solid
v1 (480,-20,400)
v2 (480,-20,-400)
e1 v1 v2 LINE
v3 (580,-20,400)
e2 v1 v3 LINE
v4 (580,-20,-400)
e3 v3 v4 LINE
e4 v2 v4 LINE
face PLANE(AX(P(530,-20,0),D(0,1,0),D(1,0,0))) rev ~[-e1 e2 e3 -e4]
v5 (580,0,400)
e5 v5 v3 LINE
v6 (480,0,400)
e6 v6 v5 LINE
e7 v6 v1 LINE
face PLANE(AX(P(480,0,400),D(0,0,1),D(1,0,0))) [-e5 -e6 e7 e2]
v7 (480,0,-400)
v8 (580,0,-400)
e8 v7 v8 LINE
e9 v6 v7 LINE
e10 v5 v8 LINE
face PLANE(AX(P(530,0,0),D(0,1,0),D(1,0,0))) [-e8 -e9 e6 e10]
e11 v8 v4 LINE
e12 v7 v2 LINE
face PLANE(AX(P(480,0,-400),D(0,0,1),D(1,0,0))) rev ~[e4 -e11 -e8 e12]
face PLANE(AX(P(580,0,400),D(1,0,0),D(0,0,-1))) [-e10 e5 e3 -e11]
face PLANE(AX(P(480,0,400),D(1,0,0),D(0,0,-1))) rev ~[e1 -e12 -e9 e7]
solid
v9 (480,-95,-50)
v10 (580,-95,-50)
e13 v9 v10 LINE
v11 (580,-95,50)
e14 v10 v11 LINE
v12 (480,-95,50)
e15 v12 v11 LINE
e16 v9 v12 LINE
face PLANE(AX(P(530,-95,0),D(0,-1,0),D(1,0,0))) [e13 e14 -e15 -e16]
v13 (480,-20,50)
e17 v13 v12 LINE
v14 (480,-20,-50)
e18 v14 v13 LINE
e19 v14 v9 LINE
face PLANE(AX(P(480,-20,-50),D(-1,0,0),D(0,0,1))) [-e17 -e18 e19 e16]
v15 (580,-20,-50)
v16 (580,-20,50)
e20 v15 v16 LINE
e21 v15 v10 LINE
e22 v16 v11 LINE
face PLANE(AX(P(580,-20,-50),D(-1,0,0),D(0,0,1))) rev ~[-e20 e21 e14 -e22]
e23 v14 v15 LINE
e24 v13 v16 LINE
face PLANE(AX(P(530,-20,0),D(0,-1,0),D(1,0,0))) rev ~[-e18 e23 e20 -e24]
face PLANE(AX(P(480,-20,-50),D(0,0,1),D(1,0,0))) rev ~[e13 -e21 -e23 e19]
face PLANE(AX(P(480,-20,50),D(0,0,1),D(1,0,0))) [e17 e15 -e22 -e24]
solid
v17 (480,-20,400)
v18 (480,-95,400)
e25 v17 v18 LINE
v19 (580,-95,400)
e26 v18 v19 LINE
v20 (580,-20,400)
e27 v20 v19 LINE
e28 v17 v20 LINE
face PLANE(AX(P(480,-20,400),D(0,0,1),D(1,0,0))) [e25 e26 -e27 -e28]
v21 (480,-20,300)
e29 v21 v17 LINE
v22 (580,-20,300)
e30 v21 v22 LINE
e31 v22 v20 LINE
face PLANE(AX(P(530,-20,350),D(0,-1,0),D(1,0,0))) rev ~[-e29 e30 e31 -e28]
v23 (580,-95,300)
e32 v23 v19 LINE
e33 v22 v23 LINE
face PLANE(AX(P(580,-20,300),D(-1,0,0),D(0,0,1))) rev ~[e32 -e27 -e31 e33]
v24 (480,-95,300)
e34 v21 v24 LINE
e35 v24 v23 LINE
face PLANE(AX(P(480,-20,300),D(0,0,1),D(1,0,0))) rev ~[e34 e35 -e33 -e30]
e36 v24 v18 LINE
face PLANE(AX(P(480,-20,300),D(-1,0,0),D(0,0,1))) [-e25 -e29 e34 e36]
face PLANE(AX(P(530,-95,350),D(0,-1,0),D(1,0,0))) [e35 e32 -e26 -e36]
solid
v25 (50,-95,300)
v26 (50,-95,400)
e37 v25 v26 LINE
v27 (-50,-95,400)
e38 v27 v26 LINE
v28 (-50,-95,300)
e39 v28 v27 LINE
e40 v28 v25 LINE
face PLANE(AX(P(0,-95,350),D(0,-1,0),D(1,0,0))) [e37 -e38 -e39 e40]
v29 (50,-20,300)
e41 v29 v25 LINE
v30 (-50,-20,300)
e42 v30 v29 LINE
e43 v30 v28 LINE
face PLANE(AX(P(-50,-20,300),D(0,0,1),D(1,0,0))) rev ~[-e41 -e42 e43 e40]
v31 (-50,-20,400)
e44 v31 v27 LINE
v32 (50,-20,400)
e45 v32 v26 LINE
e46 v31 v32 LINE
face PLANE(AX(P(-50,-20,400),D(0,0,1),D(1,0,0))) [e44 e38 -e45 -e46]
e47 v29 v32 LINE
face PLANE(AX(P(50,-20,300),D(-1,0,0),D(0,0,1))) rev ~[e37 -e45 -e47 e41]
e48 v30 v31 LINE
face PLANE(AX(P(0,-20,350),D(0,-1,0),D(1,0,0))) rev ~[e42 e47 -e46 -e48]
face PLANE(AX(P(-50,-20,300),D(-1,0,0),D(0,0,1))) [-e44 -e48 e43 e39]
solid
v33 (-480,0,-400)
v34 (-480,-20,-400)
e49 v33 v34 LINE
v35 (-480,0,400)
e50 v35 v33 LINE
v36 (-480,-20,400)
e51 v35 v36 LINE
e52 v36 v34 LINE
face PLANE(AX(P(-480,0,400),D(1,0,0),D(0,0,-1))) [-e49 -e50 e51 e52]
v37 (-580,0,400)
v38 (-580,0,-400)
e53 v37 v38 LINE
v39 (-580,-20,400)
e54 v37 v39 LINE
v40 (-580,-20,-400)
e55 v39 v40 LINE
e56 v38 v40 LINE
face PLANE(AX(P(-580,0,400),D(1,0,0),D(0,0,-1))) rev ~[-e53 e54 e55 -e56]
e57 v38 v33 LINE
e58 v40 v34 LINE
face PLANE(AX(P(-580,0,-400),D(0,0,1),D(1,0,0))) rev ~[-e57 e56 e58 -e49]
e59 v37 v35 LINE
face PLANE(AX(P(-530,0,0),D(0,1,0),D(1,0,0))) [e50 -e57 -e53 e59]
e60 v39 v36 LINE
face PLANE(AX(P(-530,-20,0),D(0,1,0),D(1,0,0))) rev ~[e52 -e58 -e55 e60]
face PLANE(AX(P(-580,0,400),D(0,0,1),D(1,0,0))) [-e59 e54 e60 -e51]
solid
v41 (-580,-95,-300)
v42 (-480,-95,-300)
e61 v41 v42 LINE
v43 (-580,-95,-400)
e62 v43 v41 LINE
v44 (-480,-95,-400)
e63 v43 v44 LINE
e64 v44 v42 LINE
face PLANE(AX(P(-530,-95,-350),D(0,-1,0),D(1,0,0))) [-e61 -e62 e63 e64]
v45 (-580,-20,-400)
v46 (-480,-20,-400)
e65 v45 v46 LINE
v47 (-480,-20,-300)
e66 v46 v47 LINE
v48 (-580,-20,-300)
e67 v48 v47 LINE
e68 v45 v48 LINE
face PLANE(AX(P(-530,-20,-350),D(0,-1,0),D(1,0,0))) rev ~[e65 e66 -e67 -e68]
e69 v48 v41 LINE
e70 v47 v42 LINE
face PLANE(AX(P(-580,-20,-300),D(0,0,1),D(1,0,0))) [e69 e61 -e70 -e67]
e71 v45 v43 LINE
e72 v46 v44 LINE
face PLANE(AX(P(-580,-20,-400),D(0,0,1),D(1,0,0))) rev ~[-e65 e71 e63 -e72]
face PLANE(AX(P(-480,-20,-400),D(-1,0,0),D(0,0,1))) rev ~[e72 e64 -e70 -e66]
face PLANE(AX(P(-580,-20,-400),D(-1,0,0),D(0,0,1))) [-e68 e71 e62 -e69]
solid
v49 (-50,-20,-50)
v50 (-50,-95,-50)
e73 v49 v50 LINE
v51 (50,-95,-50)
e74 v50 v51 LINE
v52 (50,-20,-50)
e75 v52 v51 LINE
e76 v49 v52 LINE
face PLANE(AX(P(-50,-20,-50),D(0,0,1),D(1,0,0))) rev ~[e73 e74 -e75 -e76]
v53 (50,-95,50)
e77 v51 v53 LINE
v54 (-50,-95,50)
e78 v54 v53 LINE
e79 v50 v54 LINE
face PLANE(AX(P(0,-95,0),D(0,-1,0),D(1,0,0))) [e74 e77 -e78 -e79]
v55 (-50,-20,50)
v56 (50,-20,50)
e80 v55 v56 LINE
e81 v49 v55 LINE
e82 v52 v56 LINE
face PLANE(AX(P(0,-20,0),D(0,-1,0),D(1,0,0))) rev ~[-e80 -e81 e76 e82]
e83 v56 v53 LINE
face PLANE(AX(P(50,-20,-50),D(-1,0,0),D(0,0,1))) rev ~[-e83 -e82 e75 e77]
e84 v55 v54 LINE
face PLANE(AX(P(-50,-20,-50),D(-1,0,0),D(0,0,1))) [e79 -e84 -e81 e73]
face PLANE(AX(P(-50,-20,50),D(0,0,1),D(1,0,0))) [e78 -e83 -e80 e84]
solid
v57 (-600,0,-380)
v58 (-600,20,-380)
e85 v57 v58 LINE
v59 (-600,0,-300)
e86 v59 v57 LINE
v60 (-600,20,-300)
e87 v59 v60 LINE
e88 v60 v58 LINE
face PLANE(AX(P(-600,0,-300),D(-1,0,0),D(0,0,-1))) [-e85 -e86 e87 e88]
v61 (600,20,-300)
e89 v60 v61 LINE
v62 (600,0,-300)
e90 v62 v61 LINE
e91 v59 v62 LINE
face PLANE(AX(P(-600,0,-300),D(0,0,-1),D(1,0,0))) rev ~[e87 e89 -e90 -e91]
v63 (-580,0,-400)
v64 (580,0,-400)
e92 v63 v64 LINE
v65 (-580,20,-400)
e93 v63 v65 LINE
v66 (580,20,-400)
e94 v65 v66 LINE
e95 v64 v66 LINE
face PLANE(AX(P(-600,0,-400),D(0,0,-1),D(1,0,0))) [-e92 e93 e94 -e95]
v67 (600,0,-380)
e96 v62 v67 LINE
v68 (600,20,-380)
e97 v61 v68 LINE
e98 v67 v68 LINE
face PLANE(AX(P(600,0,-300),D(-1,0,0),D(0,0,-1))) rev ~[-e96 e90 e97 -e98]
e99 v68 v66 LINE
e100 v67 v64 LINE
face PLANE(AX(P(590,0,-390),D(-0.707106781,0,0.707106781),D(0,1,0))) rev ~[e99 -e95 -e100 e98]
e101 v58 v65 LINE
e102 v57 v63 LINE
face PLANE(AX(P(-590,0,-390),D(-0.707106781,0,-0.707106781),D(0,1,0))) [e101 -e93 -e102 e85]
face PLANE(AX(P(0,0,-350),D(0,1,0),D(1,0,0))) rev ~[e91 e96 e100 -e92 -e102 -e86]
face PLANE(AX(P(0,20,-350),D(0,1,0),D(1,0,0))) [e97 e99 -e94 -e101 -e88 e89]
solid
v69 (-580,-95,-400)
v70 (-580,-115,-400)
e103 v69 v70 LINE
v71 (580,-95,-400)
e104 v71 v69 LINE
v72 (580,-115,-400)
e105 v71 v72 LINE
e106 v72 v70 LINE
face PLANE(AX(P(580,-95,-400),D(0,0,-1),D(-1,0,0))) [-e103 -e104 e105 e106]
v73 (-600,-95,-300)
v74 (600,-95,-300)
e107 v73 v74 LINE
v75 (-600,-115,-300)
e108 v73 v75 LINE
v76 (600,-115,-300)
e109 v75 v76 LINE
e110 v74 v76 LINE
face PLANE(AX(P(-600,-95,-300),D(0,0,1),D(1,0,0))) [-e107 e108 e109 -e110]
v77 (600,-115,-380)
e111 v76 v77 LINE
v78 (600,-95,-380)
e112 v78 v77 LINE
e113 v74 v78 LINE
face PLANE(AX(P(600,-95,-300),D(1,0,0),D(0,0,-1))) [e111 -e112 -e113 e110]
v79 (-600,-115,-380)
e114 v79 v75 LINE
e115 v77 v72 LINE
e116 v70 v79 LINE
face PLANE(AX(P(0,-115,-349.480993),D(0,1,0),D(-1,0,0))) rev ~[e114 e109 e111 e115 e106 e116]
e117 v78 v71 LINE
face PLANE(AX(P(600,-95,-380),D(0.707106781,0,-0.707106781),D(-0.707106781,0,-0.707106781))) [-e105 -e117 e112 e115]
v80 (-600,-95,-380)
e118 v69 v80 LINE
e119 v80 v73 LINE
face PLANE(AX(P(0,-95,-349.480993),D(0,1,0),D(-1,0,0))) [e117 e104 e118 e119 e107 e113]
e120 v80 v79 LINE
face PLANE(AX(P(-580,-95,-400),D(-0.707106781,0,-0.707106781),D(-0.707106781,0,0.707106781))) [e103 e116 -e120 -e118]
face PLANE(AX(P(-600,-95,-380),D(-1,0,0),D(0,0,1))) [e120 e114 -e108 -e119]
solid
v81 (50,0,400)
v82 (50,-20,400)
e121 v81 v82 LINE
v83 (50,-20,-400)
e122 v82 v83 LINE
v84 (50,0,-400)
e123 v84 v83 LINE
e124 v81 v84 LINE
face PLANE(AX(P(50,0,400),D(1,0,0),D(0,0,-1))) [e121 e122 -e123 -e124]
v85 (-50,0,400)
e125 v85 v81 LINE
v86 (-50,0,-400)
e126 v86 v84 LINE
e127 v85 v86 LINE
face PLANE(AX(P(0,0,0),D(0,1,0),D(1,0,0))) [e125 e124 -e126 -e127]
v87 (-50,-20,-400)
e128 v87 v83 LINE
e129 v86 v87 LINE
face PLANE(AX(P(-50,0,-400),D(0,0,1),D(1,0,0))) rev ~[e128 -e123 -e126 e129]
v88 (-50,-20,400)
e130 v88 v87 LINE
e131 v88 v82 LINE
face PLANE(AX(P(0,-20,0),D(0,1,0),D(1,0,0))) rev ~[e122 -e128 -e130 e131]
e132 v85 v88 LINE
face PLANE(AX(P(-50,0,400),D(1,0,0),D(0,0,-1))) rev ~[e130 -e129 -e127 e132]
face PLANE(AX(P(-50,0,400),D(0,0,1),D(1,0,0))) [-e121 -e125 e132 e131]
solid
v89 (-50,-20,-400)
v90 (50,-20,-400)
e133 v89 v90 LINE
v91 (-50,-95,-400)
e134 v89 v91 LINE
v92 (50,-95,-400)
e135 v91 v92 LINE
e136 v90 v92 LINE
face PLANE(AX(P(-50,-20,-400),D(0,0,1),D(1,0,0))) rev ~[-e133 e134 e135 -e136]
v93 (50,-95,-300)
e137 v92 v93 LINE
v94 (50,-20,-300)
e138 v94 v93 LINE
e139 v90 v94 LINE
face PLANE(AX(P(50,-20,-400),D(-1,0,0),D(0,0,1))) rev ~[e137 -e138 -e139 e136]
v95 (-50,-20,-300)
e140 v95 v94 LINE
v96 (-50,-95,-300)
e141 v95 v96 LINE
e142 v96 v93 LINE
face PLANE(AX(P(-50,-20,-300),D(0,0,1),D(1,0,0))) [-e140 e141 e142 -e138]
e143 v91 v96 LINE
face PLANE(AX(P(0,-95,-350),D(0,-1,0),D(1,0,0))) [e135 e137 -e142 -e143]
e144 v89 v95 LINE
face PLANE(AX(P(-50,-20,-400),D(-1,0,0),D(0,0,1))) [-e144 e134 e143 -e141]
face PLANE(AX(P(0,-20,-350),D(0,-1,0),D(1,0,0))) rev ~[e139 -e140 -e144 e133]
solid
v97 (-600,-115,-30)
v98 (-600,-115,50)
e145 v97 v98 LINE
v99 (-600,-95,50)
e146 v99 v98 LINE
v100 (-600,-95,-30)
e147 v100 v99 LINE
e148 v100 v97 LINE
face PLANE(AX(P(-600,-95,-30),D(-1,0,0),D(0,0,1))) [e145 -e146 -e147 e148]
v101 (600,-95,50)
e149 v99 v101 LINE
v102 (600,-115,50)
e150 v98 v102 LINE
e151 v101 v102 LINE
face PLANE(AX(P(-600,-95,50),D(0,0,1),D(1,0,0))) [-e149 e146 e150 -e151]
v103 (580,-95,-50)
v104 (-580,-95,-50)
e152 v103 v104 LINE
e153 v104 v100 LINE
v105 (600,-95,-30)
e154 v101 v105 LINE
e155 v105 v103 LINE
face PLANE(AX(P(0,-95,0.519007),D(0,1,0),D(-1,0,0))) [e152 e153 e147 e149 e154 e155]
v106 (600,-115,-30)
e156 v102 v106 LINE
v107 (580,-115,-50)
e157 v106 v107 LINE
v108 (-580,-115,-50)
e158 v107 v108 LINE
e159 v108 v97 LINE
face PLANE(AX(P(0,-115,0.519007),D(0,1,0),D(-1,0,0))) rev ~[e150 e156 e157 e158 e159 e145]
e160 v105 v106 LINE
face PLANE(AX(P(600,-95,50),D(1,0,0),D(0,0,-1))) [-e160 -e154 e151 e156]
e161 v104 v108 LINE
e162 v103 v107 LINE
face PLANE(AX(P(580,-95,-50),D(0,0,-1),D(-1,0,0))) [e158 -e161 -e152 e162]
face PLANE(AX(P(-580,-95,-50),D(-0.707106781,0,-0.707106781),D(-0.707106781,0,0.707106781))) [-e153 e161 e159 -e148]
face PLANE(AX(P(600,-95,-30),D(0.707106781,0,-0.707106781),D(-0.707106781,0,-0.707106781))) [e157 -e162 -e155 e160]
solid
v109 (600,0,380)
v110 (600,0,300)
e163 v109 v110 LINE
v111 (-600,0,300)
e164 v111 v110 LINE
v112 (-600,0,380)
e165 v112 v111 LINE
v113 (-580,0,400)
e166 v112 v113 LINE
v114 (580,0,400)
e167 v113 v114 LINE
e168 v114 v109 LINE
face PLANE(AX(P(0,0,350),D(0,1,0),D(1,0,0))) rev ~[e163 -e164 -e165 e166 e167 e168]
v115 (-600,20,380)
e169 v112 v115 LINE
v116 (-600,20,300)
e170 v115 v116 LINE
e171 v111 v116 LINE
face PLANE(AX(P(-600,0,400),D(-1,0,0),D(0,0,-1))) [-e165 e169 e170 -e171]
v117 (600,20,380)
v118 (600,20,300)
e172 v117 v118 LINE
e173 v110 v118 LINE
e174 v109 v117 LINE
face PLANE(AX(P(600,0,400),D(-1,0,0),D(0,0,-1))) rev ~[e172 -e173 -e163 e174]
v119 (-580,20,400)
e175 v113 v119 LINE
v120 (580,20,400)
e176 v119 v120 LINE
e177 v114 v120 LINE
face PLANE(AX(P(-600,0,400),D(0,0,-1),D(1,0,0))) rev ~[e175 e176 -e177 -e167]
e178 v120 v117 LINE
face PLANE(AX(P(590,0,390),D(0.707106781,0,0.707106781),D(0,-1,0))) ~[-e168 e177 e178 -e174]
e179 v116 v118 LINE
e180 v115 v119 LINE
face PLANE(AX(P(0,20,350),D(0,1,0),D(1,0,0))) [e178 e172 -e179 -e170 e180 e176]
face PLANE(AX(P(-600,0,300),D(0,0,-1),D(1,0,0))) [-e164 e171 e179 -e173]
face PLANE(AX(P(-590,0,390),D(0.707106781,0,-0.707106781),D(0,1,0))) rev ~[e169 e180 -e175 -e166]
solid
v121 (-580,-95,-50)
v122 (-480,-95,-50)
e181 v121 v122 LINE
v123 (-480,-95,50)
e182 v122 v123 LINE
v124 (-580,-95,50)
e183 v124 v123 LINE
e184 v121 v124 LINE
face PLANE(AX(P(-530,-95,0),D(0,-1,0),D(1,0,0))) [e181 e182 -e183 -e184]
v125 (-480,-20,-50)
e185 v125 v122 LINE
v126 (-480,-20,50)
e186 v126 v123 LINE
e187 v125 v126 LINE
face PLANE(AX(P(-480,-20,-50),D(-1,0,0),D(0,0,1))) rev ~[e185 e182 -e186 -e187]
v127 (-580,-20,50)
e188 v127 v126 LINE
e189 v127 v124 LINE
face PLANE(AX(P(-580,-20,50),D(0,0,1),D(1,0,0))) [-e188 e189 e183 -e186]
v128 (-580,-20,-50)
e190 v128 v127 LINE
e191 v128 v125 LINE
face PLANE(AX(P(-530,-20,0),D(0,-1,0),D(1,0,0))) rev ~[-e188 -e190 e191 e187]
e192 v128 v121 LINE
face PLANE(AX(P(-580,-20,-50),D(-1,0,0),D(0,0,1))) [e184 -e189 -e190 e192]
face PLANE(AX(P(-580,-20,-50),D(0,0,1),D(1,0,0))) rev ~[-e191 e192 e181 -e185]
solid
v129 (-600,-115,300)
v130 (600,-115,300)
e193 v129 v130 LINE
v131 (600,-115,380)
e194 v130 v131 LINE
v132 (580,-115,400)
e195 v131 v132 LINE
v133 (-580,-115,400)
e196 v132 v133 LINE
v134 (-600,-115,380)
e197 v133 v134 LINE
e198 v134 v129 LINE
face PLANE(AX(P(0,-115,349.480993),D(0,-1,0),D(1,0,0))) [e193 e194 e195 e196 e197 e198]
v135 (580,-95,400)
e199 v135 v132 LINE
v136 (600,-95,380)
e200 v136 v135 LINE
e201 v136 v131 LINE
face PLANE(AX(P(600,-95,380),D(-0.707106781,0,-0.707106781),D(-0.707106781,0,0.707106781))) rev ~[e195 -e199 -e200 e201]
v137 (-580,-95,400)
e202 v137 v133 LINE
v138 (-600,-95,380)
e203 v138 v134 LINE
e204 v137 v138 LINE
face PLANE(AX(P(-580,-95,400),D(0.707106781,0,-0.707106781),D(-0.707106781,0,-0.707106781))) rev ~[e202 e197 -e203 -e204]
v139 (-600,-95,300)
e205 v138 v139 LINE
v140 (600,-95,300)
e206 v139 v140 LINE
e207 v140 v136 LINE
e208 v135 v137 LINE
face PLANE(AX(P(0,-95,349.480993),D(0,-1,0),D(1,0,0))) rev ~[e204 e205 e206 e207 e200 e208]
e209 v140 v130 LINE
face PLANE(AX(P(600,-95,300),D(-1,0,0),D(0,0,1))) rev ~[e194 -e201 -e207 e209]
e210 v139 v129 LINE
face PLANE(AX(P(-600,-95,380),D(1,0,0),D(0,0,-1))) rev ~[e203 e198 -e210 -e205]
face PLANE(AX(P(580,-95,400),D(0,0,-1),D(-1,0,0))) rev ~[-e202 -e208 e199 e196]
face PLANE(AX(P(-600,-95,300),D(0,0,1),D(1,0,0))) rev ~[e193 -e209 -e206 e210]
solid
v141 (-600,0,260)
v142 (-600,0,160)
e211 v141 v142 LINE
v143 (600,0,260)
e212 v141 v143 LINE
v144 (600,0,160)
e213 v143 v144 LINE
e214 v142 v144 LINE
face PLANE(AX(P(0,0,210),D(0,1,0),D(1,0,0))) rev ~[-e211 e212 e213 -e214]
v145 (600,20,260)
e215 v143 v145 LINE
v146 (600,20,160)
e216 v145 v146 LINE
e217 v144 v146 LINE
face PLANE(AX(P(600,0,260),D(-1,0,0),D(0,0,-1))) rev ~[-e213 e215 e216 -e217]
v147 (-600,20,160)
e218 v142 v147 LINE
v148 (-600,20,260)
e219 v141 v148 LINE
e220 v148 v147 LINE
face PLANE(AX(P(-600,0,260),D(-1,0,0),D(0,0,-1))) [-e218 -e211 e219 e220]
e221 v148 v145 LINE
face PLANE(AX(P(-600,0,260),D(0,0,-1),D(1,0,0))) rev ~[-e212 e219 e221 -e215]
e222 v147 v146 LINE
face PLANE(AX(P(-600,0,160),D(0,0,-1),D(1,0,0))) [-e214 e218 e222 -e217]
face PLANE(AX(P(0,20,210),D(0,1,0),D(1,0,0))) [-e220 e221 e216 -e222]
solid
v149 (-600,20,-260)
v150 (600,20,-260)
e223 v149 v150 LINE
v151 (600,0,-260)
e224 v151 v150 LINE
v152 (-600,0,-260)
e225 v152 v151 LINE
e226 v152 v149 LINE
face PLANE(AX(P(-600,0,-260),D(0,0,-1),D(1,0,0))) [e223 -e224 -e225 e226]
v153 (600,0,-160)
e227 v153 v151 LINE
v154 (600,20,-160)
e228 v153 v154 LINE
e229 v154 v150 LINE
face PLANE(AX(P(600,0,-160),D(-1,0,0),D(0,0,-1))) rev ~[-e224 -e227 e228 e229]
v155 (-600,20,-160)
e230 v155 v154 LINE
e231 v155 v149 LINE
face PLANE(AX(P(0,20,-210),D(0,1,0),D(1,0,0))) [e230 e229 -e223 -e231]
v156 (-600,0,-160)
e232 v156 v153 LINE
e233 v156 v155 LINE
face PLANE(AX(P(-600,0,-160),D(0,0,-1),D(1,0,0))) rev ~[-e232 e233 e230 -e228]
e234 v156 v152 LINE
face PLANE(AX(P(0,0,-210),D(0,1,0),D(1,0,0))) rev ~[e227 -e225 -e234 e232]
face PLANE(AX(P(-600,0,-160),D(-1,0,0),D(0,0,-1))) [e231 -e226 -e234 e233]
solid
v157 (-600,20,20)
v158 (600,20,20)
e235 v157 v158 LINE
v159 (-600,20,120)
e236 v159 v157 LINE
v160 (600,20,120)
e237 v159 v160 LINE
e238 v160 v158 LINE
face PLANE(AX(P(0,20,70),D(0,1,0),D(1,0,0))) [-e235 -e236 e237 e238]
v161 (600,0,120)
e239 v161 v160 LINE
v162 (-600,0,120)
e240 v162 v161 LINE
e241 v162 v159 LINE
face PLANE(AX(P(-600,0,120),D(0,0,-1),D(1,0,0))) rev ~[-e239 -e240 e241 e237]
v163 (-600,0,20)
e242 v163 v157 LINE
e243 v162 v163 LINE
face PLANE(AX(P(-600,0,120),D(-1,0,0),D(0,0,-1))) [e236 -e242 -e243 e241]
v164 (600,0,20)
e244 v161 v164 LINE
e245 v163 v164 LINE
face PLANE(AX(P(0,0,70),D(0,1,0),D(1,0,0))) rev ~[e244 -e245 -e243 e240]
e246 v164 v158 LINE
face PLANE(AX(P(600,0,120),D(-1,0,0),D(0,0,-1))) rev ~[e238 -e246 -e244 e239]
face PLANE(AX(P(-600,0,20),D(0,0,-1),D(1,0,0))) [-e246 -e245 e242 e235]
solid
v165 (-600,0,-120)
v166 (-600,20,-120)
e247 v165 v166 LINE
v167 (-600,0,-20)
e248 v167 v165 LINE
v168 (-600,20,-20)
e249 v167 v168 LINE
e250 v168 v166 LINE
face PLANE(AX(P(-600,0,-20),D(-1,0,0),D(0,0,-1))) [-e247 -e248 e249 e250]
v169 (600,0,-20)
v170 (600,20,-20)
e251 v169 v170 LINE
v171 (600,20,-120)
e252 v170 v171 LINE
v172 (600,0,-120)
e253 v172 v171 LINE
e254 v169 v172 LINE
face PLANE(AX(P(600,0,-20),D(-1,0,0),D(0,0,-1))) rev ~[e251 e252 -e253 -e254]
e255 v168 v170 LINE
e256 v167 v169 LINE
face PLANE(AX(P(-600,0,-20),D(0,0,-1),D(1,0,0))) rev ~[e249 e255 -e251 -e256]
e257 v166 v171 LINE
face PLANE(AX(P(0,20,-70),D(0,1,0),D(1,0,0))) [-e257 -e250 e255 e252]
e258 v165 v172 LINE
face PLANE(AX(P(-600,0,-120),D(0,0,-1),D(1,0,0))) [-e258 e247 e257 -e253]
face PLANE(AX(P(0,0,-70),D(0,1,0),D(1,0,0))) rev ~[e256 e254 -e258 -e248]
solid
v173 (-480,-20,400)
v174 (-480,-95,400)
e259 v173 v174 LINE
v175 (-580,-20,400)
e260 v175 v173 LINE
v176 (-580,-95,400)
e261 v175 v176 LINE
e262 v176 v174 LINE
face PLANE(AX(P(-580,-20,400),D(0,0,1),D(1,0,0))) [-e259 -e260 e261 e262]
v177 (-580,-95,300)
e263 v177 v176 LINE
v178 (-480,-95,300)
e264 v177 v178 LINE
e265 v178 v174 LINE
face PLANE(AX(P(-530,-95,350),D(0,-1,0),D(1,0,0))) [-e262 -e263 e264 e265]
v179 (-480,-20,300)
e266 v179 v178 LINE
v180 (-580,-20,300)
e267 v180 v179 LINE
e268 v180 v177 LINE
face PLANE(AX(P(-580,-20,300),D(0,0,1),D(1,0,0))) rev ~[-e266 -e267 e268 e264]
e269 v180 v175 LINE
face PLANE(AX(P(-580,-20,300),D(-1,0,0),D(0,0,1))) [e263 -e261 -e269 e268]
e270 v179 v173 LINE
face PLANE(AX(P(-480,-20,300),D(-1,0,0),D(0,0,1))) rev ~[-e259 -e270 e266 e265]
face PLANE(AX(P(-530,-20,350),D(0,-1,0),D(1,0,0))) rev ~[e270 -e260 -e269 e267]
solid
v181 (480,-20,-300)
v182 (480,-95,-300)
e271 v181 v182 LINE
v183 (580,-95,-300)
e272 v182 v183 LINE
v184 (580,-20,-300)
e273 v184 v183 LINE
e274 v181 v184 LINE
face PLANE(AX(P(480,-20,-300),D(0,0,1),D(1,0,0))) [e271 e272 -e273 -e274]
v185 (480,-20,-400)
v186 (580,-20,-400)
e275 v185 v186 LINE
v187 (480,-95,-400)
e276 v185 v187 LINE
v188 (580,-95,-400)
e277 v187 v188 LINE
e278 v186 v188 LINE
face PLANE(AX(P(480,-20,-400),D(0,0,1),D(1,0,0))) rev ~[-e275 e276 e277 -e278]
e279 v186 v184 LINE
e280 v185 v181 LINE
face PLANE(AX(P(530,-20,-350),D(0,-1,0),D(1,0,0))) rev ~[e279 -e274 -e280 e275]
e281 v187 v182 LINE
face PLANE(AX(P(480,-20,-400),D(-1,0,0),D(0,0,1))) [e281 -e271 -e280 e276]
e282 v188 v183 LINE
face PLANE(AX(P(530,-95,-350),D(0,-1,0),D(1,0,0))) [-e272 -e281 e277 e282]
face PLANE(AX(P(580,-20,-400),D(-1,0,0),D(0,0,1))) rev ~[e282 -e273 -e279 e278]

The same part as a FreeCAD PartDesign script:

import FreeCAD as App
import Part
import Sketcher


def edges_at(feature, points):
    """Names of the edges that pass closest to the given points."""
    edges = feature.Shape.Edges
    near = lambda p: min(range(len(edges)), key=lambda i: edges[i].distToShape(Part.Vertex(*p))[0])
    return sorted({f"Edge{near(p) + 1}" for p in points})


def add_polygon(sketch, points):
    """Adds a closed chain of lines whose ends are joined by coincident constraints."""
    first, n = sketch.GeometryCount, len(points)
    for a, b in zip(points, points[1:] + points[:1]):
        sketch.addGeometry(Part.LineSegment(App.Vector(*a, 0), App.Vector(*b, 0)), False)
    for i in range(n):
        sketch.addConstraint(Sketcher.Constraint("Coincident", first + i, 2, first + (i + 1) % n, 1))

doc = App.newDocument("Part")
body = doc.addObject("PartDesign::Body", "Body")

# Sketch on XZ plane
sketch1 = body.newObject("Sketcher::SketchObject", "Sketch")
sketch1.AttachmentSupport = (doc.getObject("XZ_Plane"), [""])
sketch1.MapMode = "FlatFace"
add_polygon(sketch1, [(-600, -400), (-600, -300), (600, -300), (600, -400)])  # lines 0-3
sketch1.addConstraint([
    Sketcher.Constraint("Vertical", 0),
    Sketcher.Constraint("Horizontal", 1),
    Sketcher.Constraint("Vertical", 2),
    Sketcher.Constraint("Horizontal", 3),
    Sketcher.Constraint("DistanceX", 1, 1, 1, 2, 1200.0),
    Sketcher.Constraint("DistanceY", 0, 1, 0, 2, 100.0),
    Sketcher.Constraint("DistanceX", 0, 2, -1, 1, 600.0),
    Sketcher.Constraint("DistanceY", 0, 2, -1, 1, 300.0),
])
pad1 = body.newObject("PartDesign::Pad", "Pad")
pad1.Profile = sketch1
pad1.Length = 20
pad1.Reversed = True
doc.recompute()

chamfer = body.newObject("PartDesign::Chamfer", "Chamfer")
chamfer.Base = (pad1, edges_at(pad1, [(-600, 10, -400), (600, 10, -400)]))
chamfer.Size = 20
body2 = doc.addObject("PartDesign::Body", "Body001")

# Sketch on XZ plane
sketch2 = body2.newObject("Sketcher::SketchObject", "Sketch001")
sketch2.AttachmentSupport = (doc.getObject("XZ_Plane001"), [""])
sketch2.MapMode = "FlatFace"
add_polygon(sketch2, [(-600, -260), (-600, -160), (600, -160), (600, -260)])  # lines 0-3
sketch2.addConstraint([
    Sketcher.Constraint("Vertical", 0),
    Sketcher.Constraint("Horizontal", 1),
    Sketcher.Constraint("Vertical", 2),
    Sketcher.Constraint("Horizontal", 3),
    Sketcher.Constraint("DistanceX", 1, 1, 1, 2, 1200.0),
    Sketcher.Constraint("DistanceY", 0, 1, 0, 2, 100.0),
    Sketcher.Constraint("DistanceX", 0, 2, -1, 1, 600.0),
    Sketcher.Constraint("DistanceY", 0, 2, -1, 1, 160.0),
])
pad2 = body2.newObject("PartDesign::Pad", "Pad001")
pad2.Profile = sketch2
pad2.Length = 20
pad2.Reversed = True
body3 = doc.addObject("PartDesign::Body", "Body002")

# Sketch on XZ plane
sketch3 = body3.newObject("Sketcher::SketchObject", "Sketch002")
sketch3.AttachmentSupport = (doc.getObject("XZ_Plane002"), [""])
sketch3.MapMode = "FlatFace"
add_polygon(sketch3, [(-600, -120), (-600, -20), (600, -20), (600, -120)])  # lines 0-3
sketch3.addConstraint([
    Sketcher.Constraint("Vertical", 0),
    Sketcher.Constraint("Horizontal", 1),
    Sketcher.Constraint("Vertical", 2),
    Sketcher.Constraint("Horizontal", 3),
    Sketcher.Constraint("DistanceX", 1, 1, 1, 2, 1200.0),
    Sketcher.Constraint("DistanceY", 0, 1, 0, 2, 100.0),
    Sketcher.Constraint("DistanceX", 0, 2, -1, 1, 600.0),
    Sketcher.Constraint("DistanceY", 0, 2, -1, 1, 20.0),
])
pad3 = body3.newObject("PartDesign::Pad", "Pad002")
pad3.Profile = sketch3
pad3.Length = 20
pad3.Reversed = True
body4 = doc.addObject("PartDesign::Body", "Body003")

# Sketch on XZ plane
sketch4 = body4.newObject("Sketcher::SketchObject", "Sketch003")
sketch4.AttachmentSupport = (doc.getObject("XZ_Plane003"), [""])
sketch4.MapMode = "FlatFace"
add_polygon(sketch4, [(-600, 20), (-600, 120), (600, 120), (600, 20)])  # lines 0-3
sketch4.addConstraint([
    Sketcher.Constraint("Vertical", 0),
    Sketcher.Constraint("Horizontal", 1),
    Sketcher.Constraint("Vertical", 2),
    Sketcher.Constraint("Horizontal", 3),
    Sketcher.Constraint("DistanceX", 1, 1, 1, 2, 1200.0),
    Sketcher.Constraint("DistanceY", 0, 1, 0, 2, 100.0),
    Sketcher.Constraint("DistanceX", 0, 2, -1, 1, 600.0),
    Sketcher.Constraint("DistanceY", -1, 1, 0, 2, 120.0),
])
pad4 = body4.newObject("PartDesign::Pad", "Pad003")
pad4.Profile = sketch4
pad4.Length = 20
pad4.Reversed = True
body5 = doc.addObject("PartDesign::Body", "Body004")

# Sketch on XZ plane
sketch5 = body5.newObject("Sketcher::SketchObject", "Sketch004")
sketch5.AttachmentSupport = (doc.getObject("XZ_Plane004"), [""])
sketch5.MapMode = "FlatFace"
add_polygon(sketch5, [(-600, 160), (-600, 260), (600, 260), (600, 160)])  # lines 0-3
sketch5.addConstraint([
    Sketcher.Constraint("Vertical", 0),
    Sketcher.Constraint("Horizontal", 1),
    Sketcher.Constraint("Vertical", 2),
    Sketcher.Constraint("Horizontal", 3),
    Sketcher.Constraint("DistanceX", 1, 1, 1, 2, 1200.0),
    Sketcher.Constraint("DistanceY", 0, 1, 0, 2, 100.0),
    Sketcher.Constraint("DistanceX", 0, 2, -1, 1, 600.0),
    Sketcher.Constraint("DistanceY", -1, 1, 0, 2, 260.0),
])
pad5 = body5.newObject("PartDesign::Pad", "Pad004")
pad5.Profile = sketch5
pad5.Length = 20
pad5.Reversed = True
body6 = doc.addObject("PartDesign::Body", "Body005")

# Sketch on XZ plane
sketch6 = body6.newObject("Sketcher::SketchObject", "Sketch005")
sketch6.AttachmentSupport = (doc.getObject("XZ_Plane005"), [""])
sketch6.MapMode = "FlatFace"
add_polygon(sketch6, [(-600, 300), (-600, 400), (600, 400), (600, 300)])  # lines 0-3
sketch6.addConstraint([
    Sketcher.Constraint("Vertical", 0),
    Sketcher.Constraint("Horizontal", 1),
    Sketcher.Constraint("Vertical", 2),
    Sketcher.Constraint("Horizontal", 3),
    Sketcher.Constraint("DistanceX", 1, 1, 1, 2, 1200.0),
    Sketcher.Constraint("DistanceY", 0, 1, 0, 2, 100.0),
    Sketcher.Constraint("DistanceX", 0, 2, -1, 1, 600.0),
    Sketcher.Constraint("DistanceY", -1, 1, 0, 2, 400.0),
])
pad6 = body6.newObject("PartDesign::Pad", "Pad005")
pad6.Profile = sketch6
pad6.Length = 20
pad6.Reversed = True
doc.recompute()

chamfer2 = body6.newObject("PartDesign::Chamfer", "Chamfer001")
chamfer2.Base = (pad6, edges_at(pad6, [(-600, 10, 400), (600, 10, 400)]))
chamfer2.Size = 20
body7 = doc.addObject("PartDesign::Body", "Body006")

# Sketch on XZ plane
sketch7 = body7.newObject("Sketcher::SketchObject", "Sketch006")
sketch7.AttachmentSupport = (doc.getObject("XZ_Plane006"), [""])
sketch7.MapMode = "FlatFace"
add_polygon(sketch7, [(-580, -400), (-580, 400), (-480, 400), (-480, -400)])  # lines 0-3
sketch7.addConstraint([
    Sketcher.Constraint("Vertical", 0),
    Sketcher.Constraint("Horizontal", 1),
    Sketcher.Constraint("Vertical", 2),
    Sketcher.Constraint("Horizontal", 3),
    Sketcher.Constraint("DistanceX", 1, 1, 1, 2, 100.0),
    Sketcher.Constraint("DistanceY", 0, 1, 0, 2, 800.0),
    Sketcher.Constraint("DistanceX", 0, 2, -1, 1, 580.0),
    Sketcher.Constraint("DistanceY", -1, 1, 0, 2, 400.0),
])
pad7 = body7.newObject("PartDesign::Pad", "Pad006")
pad7.Profile = sketch7
pad7.Length = 20
body8 = doc.addObject("PartDesign::Body", "Body007")

# Sketch on XZ plane
sketch8 = body8.newObject("Sketcher::SketchObject", "Sketch007")
sketch8.AttachmentSupport = (doc.getObject("XZ_Plane007"), [""])
sketch8.MapMode = "FlatFace"
add_polygon(sketch8, [(-50, -400), (-50, 400), (50, 400), (50, -400)])  # lines 0-3
sketch8.addConstraint([
    Sketcher.Constraint("Vertical", 0),
    Sketcher.Constraint("Horizontal", 1),
    Sketcher.Constraint("Vertical", 2),
    Sketcher.Constraint("Horizontal", 3),
    Sketcher.Constraint("Symmetric", 0, 2, 2, 2, -1, 1),
    Sketcher.Constraint("DistanceX", 1, 1, 1, 2, 100.0),
    Sketcher.Constraint("DistanceY", 0, 1, 0, 2, 800.0),
])
pad8 = body8.newObject("PartDesign::Pad", "Pad007")
pad8.Profile = sketch8
pad8.Length = 20
body9 = doc.addObject("PartDesign::Body", "Body008")

# Sketch on XZ plane
sketch9 = body9.newObject("Sketcher::SketchObject", "Sketch008")
sketch9.AttachmentSupport = (doc.getObject("XZ_Plane008"), [""])
sketch9.MapMode = "FlatFace"
add_polygon(sketch9, [(480, -400), (480, 400), (580, 400), (580, -400)])  # lines 0-3
sketch9.addConstraint([
    Sketcher.Constraint("Vertical", 0),
    Sketcher.Constraint("Horizontal", 1),
    Sketcher.Constraint("Vertical", 2),
    Sketcher.Constraint("Horizontal", 3),
    Sketcher.Constraint("DistanceX", 1, 1, 1, 2, 100.0),
    Sketcher.Constraint("DistanceY", 0, 1, 0, 2, 800.0),
    Sketcher.Constraint("DistanceX", -1, 1, 0, 2, 480.0),
    Sketcher.Constraint("DistanceY", -1, 1, 0, 2, 400.0),
])
pad9 = body9.newObject("PartDesign::Pad", "Pad008")
pad9.Profile = sketch9
pad9.Length = 20
body10 = doc.addObject("PartDesign::Body", "Body009")

# Sketch on XZ plane
sketch10 = body10.newObject("Sketcher::SketchObject", "Sketch009")
sketch10.AttachmentSupport = (doc.getObject("XZ_Plane009"), [""])
sketch10.MapMode = "FlatFace"
sketch10.AttachmentOffset = App.Placement(App.Vector(0, 0, 20), App.Rotation())
add_polygon(sketch10, [(-580, 400), (-580, 300), (-480, 300), (-480, 400)])  # lines 0-3
sketch10.addConstraint([
    Sketcher.Constraint("Vertical", 0),
    Sketcher.Constraint("Horizontal", 1),
    Sketcher.Constraint("Vertical", 2),
    Sketcher.Constraint("Horizontal", 3),
    Sketcher.Constraint("Equal", 3, 0),
    Sketcher.Constraint("DistanceX", 1, 1, 1, 2, 100.0),
    Sketcher.Constraint("DistanceX", 0, 2, -1, 1, 580.0),
    Sketcher.Constraint("DistanceY", -1, 1, 0, 2, 300.0),
])
pad10 = body10.newObject("PartDesign::Pad", "Pad009")
pad10.Profile = sketch10
pad10.Length = 75
body11 = doc.addObject("PartDesign::Body", "Body010")

# Sketch on XZ plane
sketch11 = body11.newObject("Sketcher::SketchObject", "Sketch010")
sketch11.AttachmentSupport = (doc.getObject("XZ_Plane010"), [""])
sketch11.MapMode = "FlatFace"
sketch11.AttachmentOffset = App.Placement(App.Vector(0, 0, 20), App.Rotation())
add_polygon(sketch11, [(-50, 400), (-50, 300), (50, 300), (50, 400)])  # lines 0-3
sketch11.addConstraint([
    Sketcher.Constraint("Vertical", 0),
    Sketcher.Constraint("Horizontal", 1),
    Sketcher.Constraint("Vertical", 2),
    Sketcher.Constraint("Horizontal", 3),
    Sketcher.Constraint("Equal", 3, 0),
    Sketcher.Constraint("DistanceX", 1, 1, 1, 2, 100.0),
    Sketcher.Constraint("DistanceX", 0, 2, -1, 1, 50.0),
    Sketcher.Constraint("DistanceY", -1, 1, 0, 2, 300.0),
])
pad11 = body11.newObject("PartDesign::Pad", "Pad010")
pad11.Profile = sketch11
pad11.Length = 75
body12 = doc.addObject("PartDesign::Body", "Body011")

# Sketch on XZ plane
sketch12 = body12.newObject("Sketcher::SketchObject", "Sketch011")
sketch12.AttachmentSupport = (doc.getObject("XZ_Plane011"), [""])
sketch12.MapMode = "FlatFace"
sketch12.AttachmentOffset = App.Placement(App.Vector(0, 0, 20), App.Rotation())
add_polygon(sketch12, [(480, 400), (480, 300), (580, 300), (580, 400)])  # lines 0-3
sketch12.addConstraint([
    Sketcher.Constraint("Vertical", 0),
    Sketcher.Constraint("Horizontal", 1),
    Sketcher.Constraint("Vertical", 2),
    Sketcher.Constraint("Horizontal", 3),
    Sketcher.Constraint("Equal", 3, 0),
    Sketcher.Constraint("DistanceX", 1, 1, 1, 2, 100.0),
    Sketcher.Constraint("DistanceX", -1, 1, 0, 2, 480.0),
    Sketcher.Constraint("DistanceY", -1, 1, 0, 2, 300.0),
])
pad12 = body12.newObject("PartDesign::Pad", "Pad011")
pad12.Profile = sketch12
pad12.Length = 75
body13 = doc.addObject("PartDesign::Body", "Body012")

# Sketch on XZ plane
sketch13 = body13.newObject("Sketcher::SketchObject", "Sketch012")
sketch13.AttachmentSupport = (doc.getObject("XZ_Plane012"), [""])
sketch13.MapMode = "FlatFace"
sketch13.AttachmentOffset = App.Placement(App.Vector(0, 0, 20), App.Rotation())
add_polygon(sketch13, [(480, -300), (480, -400), (580, -400), (580, -300)])  # lines 0-3
sketch13.addConstraint([
    Sketcher.Constraint("Vertical", 0),
    Sketcher.Constraint("Horizontal", 1),
    Sketcher.Constraint("Vertical", 2),
    Sketcher.Constraint("Horizontal", 3),
    Sketcher.Constraint("Equal", 3, 0),
    Sketcher.Constraint("DistanceX", 1, 1, 1, 2, 100.0),
    Sketcher.Constraint("DistanceX", -1, 1, 0, 2, 480.0),
    Sketcher.Constraint("DistanceY", 0, 2, -1, 1, 400.0),
])
pad13 = body13.newObject("PartDesign::Pad", "Pad012")
pad13.Profile = sketch13
pad13.Length = 75
body14 = doc.addObject("PartDesign::Body", "Body013")

# Sketch on XZ plane
sketch14 = body14.newObject("Sketcher::SketchObject", "Sketch013")
sketch14.AttachmentSupport = (doc.getObject("XZ_Plane013"), [""])
sketch14.MapMode = "FlatFace"
sketch14.AttachmentOffset = App.Placement(App.Vector(0, 0, 20), App.Rotation())
add_polygon(sketch14, [(-50, -300), (-50, -400), (50, -400), (50, -300)])  # lines 0-3
sketch14.addConstraint([
    Sketcher.Constraint("Vertical", 0),
    Sketcher.Constraint("Horizontal", 1),
    Sketcher.Constraint("Vertical", 2),
    Sketcher.Constraint("Horizontal", 3),
    Sketcher.Constraint("Equal", 3, 0),
    Sketcher.Constraint("DistanceX", 1, 1, 1, 2, 100.0),
    Sketcher.Constraint("DistanceX", 0, 2, -1, 1, 50.0),
    Sketcher.Constraint("DistanceY", 0, 2, -1, 1, 400.0),
])
pad14 = body14.newObject("PartDesign::Pad", "Pad013")
pad14.Profile = sketch14
pad14.Length = 75
body15 = doc.addObject("PartDesign::Body", "Body014")

# Sketch on XZ plane
sketch15 = body15.newObject("Sketcher::SketchObject", "Sketch014")
sketch15.AttachmentSupport = (doc.getObject("XZ_Plane014"), [""])
sketch15.MapMode = "FlatFace"
sketch15.AttachmentOffset = App.Placement(App.Vector(0, 0, 20), App.Rotation())
add_polygon(sketch15, [(-580, -300), (-580, -400), (-480, -400), (-480, -300)])  # lines 0-3
sketch15.addConstraint([
    Sketcher.Constraint("Vertical", 0),
    Sketcher.Constraint("Horizontal", 1),
    Sketcher.Constraint("Vertical", 2),
    Sketcher.Constraint("Horizontal", 3),
    Sketcher.Constraint("Equal", 3, 0),
    Sketcher.Constraint("DistanceX", 1, 1, 1, 2, 100.0),
    Sketcher.Constraint("DistanceX", 0, 2, -1, 1, 580.0),
    Sketcher.Constraint("DistanceY", 0, 2, -1, 1, 400.0),
])
pad15 = body15.newObject("PartDesign::Pad", "Pad014")
pad15.Profile = sketch15
pad15.Length = 75
body16 = doc.addObject("PartDesign::Body", "Body015")

# Sketch on XZ plane
sketch16 = body16.newObject("Sketcher::SketchObject", "Sketch015")
sketch16.AttachmentSupport = (doc.getObject("XZ_Plane015"), [""])
sketch16.MapMode = "FlatFace"
sketch16.AttachmentOffset = App.Placement(App.Vector(0, 0, 20), App.Rotation())
add_polygon(sketch16, [(-580, 50), (-580, -50), (-480, -50), (-480, 50)])  # lines 0-3
sketch16.addConstraint([
    Sketcher.Constraint("Vertical", 0),
    Sketcher.Constraint("Horizontal", 1),
    Sketcher.Constraint("Vertical", 2),
    Sketcher.Constraint("Horizontal", 3),
    Sketcher.Constraint("Equal", 3, 0),
    Sketcher.Constraint("DistanceX", 1, 1, 1, 2, 100.0),
    Sketcher.Constraint("DistanceX", 0, 2, -1, 1, 580.0),
    Sketcher.Constraint("DistanceY", 0, 2, -1, 1, 50.0),
])
pad16 = body16.newObject("PartDesign::Pad", "Pad015")
pad16.Profile = sketch16
pad16.Length = 75
body17 = doc.addObject("PartDesign::Body", "Body016")

# Sketch on XZ plane
sketch17 = body17.newObject("Sketcher::SketchObject", "Sketch016")
sketch17.AttachmentSupport = (doc.getObject("XZ_Plane016"), [""])
sketch17.MapMode = "FlatFace"
sketch17.AttachmentOffset = App.Placement(App.Vector(0, 0, 20), App.Rotation())
add_polygon(sketch17, [(480, 50), (480, -50), (580, -50), (580, 50)])  # lines 0-3
sketch17.addConstraint([
    Sketcher.Constraint("Vertical", 0),
    Sketcher.Constraint("Horizontal", 1),
    Sketcher.Constraint("Vertical", 2),
    Sketcher.Constraint("Horizontal", 3),
    Sketcher.Constraint("Equal", 3, 0),
    Sketcher.Constraint("DistanceX", 1, 1, 1, 2, 100.0),
    Sketcher.Constraint("DistanceX", -1, 1, 0, 2, 480.0),
    Sketcher.Constraint("DistanceY", 0, 2, -1, 1, 50.0),
])
pad17 = body17.newObject("PartDesign::Pad", "Pad016")
pad17.Profile = sketch17
pad17.Length = 75
body18 = doc.addObject("PartDesign::Body", "Body017")

# Sketch on XZ plane
sketch18 = body18.newObject("Sketcher::SketchObject", "Sketch017")
sketch18.AttachmentSupport = (doc.getObject("XZ_Plane017"), [""])
sketch18.MapMode = "FlatFace"
sketch18.AttachmentOffset = App.Placement(App.Vector(0, 0, 20), App.Rotation())
add_polygon(sketch18, [(-50, 50), (-50, -50), (50, -50), (50, 50)])  # lines 0-3
sketch18.addConstraint([
    Sketcher.Constraint("Vertical", 0),
    Sketcher.Constraint("Horizontal", 1),
    Sketcher.Constraint("Vertical", 2),
    Sketcher.Constraint("Horizontal", 3),
    Sketcher.Constraint("Symmetric", 0, 2, 2, 2, -1, 1),
    Sketcher.Constraint("Equal", 3, 0),
    Sketcher.Constraint("DistanceX", 1, 1, 1, 2, 100.0),
])
pad18 = body18.newObject("PartDesign::Pad", "Pad017")
pad18.Profile = sketch18
pad18.Length = 75
body19 = doc.addObject("PartDesign::Body", "Body018")

# Sketch on XZ plane
sketch19 = body19.newObject("Sketcher::SketchObject", "Sketch018")
sketch19.AttachmentSupport = (doc.getObject("XZ_Plane018"), [""])
sketch19.MapMode = "FlatFace"
sketch19.AttachmentOffset = App.Placement(App.Vector(0, 0, 95), App.Rotation())
add_polygon(sketch19, [(580, 400), (-580, 400), (-600, 380), (-600, 300), (600, 300), (600, 380)])  # lines 0-5
sketch19.addConstraint([
    Sketcher.Constraint("Horizontal", 0),
    Sketcher.Constraint("Vertical", 2),
    Sketcher.Constraint("Horizontal", 3),
    Sketcher.Constraint("Vertical", 4),
    Sketcher.Constraint("Symmetric", 1, 2, 4, 2, -2),
    Sketcher.Constraint("Perpendicular", 1, 5),
    Sketcher.Constraint("Equal", 1, 5),
    Sketcher.Constraint("DistanceX", 0, 2, 0, 1, 1160.0),
    Sketcher.Constraint("DistanceX", 3, 1, 3, 2, 1200.0),
    Sketcher.Constraint("DistanceY", 2, 2, 2, 1, 80.0),
    Sketcher.Constraint("DistanceY", -1, 1, 0, 2, 400.0),
])
pad19 = body19.newObject("PartDesign::Pad", "Pad018")
pad19.Profile = sketch19
pad19.Length = 20
body20 = doc.addObject("PartDesign::Body", "Body019")

# Sketch on XZ plane
sketch20 = body20.newObject("Sketcher::SketchObject", "Sketch019")
sketch20.AttachmentSupport = (doc.getObject("XZ_Plane019"), [""])
sketch20.MapMode = "FlatFace"
sketch20.AttachmentOffset = App.Placement(App.Vector(0, 0, 95), App.Rotation())
add_polygon(sketch20, [(580, -400), (600, -380), (600, -300), (-600, -300), (-600, -380), (-580, -400)])  # lines 0-5
sketch20.addConstraint([
    Sketcher.Constraint("Vertical", 1),
    Sketcher.Constraint("Horizontal", 2),
    Sketcher.Constraint("Vertical", 3),
    Sketcher.Constraint("Horizontal", 5),
    Sketcher.Constraint("Symmetric", 0, 2, 3, 2, -2),
    Sketcher.Constraint("Perpendicular", 0, 4),
    Sketcher.Constraint("Equal", 0, 4),
    Sketcher.Constraint("DistanceX", 2, 2, 2, 1, 1200.0),
    Sketcher.Constraint("DistanceX", 5, 1, 5, 2, 1160.0),
    Sketcher.Constraint("DistanceY", 1, 1, 1, 2, 80.0),
    Sketcher.Constraint("DistanceY", 0, 2, -1, 1, 380.0),
])
pad20 = body20.newObject("PartDesign::Pad", "Pad019")
pad20.Profile = sketch20
pad20.Length = 20
body21 = doc.addObject("PartDesign::Body", "Body020")

# Sketch on XZ plane
sketch21 = body21.newObject("Sketcher::SketchObject", "Sketch020")
sketch21.AttachmentSupport = (doc.getObject("XZ_Plane020"), [""])
sketch21.MapMode = "FlatFace"
sketch21.AttachmentOffset = App.Placement(App.Vector(0, 0, 95), App.Rotation())
add_polygon(sketch21, [(-580, -50), (580, -50), (600, -30), (600, 50), (-600, 50), (-600, -30)])  # lines 0-5
sketch21.addConstraint([
    Sketcher.Constraint("Horizontal", 0),
    Sketcher.Constraint("Vertical", 2),
    Sketcher.Constraint("Horizontal", 3),
    Sketcher.Constraint("Vertical", 4),
    Sketcher.Constraint("Symmetric", 1, 2, 4, 2, -2),
    Sketcher.Constraint("Perpendicular", 1, 5),
    Sketcher.Constraint("Equal", 1, 5),
    Sketcher.Constraint("DistanceX", 0, 1, 0, 2, 1160.0),
    Sketcher.Constraint("DistanceX", 3, 2, 3, 1, 1200.0),
    Sketcher.Constraint("DistanceY", 2, 1, 2, 2, 80.0),
    Sketcher.Constraint("DistanceY", 0, 2, -1, 1, 50.0),
])
pad21 = body21.newObject("PartDesign::Pad", "Pad020")
pad21.Profile = sketch21
pad21.Length = 20

doc.recompute()
